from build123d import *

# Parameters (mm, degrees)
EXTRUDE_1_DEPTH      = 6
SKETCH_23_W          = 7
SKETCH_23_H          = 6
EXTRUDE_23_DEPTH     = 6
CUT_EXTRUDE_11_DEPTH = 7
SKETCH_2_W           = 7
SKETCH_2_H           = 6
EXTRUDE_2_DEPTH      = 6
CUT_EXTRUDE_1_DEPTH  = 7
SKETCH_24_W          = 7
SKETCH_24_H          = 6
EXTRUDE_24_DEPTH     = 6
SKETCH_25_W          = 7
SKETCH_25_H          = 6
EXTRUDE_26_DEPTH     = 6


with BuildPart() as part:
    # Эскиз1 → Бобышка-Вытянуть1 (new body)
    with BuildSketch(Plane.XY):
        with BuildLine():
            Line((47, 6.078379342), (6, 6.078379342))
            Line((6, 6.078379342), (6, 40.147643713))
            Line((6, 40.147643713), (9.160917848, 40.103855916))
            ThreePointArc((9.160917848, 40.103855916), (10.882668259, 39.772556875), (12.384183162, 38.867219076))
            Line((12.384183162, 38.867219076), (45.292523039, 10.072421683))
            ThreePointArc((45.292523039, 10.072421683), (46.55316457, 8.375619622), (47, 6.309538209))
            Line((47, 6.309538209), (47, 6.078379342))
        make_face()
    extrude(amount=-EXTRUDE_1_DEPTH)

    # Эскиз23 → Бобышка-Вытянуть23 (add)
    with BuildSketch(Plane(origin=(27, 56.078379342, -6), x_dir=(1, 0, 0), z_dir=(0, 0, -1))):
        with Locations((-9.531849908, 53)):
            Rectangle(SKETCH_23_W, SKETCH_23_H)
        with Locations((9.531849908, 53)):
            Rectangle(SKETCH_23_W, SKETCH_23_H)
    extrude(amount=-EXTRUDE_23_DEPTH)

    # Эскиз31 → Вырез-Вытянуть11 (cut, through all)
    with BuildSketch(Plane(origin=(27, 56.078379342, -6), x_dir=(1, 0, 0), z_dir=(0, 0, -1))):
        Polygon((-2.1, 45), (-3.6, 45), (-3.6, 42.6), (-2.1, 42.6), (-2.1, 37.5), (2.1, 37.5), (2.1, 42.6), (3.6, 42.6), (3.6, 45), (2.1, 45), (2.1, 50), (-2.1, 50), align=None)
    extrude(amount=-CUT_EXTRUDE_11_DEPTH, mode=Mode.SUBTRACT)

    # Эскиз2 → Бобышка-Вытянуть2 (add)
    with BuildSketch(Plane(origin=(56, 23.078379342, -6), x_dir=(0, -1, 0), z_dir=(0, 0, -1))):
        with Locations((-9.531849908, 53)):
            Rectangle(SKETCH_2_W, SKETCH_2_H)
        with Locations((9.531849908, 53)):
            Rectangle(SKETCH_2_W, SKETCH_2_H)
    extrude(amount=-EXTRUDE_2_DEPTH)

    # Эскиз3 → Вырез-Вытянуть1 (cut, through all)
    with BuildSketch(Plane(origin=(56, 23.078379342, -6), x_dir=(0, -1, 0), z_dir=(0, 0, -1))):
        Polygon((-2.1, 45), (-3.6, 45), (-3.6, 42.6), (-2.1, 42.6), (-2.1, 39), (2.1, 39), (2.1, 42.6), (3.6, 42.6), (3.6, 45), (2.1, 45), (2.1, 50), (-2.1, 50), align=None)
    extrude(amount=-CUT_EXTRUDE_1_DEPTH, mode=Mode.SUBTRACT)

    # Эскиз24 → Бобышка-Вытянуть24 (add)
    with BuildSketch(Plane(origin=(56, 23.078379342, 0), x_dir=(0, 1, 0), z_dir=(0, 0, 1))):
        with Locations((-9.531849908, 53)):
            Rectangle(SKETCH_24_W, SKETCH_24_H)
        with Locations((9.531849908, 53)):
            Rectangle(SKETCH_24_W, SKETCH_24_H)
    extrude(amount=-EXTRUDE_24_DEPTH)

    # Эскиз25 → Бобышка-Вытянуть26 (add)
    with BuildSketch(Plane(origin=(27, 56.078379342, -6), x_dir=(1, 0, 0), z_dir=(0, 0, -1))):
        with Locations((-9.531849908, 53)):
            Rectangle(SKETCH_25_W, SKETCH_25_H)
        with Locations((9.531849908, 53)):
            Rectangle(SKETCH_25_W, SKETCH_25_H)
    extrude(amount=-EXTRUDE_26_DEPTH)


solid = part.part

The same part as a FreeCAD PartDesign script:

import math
import FreeCAD as App
import Part
import Sketcher

doc = App.newDocument("Part")
params = doc.addObject("Spreadsheet::Sheet", "Params")
for row, (alias, value) in enumerate([
    ("sketch1_radius", "5 mm"),
    ("sketch1_width", "41 mm"),
    ("pad1_length", "6 mm"),
    ("sketch2_width", "7 mm"),
    ("sketch2_height", "6 mm"),
    ("pad2_length", "6 mm"),
    ("sketch3_height", "5 mm"),
    ("sketch3_width", "1.5 mm"),
    ("sketch3_width2", "4.2 mm"),
    ("sketch3_height2", "2.4 mm"),
    ("sketch3_height3", "5.1 mm"),
    ("sketch4_width", "6 mm"),
    ("sketch4_height", "7 mm"),
    ("pad3_length", "6 mm"),
    ("sketch5_width", "5 mm"),
    ("sketch5_width2", "2.4 mm"),
    ("sketch5_width3", "3.6 mm"),
    ("sketch5_height", "1.5 mm"),
    ("sketch5_height2", "4.2 mm"),
    ("sketch6_width", "6 mm"),
    ("sketch6_height", "7 mm"),
    ("pad4_length", "6 mm"),
    ("sketch7_width", "7 mm"),
    ("sketch7_height", "6 mm"),
    ("pad5_length", "6 mm"),
], start=1):
    params.set(f"A{row}", alias)
    params.set(f"B{row}", "=" + value)
    params.setAlias(f"B{row}", alias)

body = doc.addObject("PartDesign::Body", "Body")

# Sketch on XY plane
sketch1 = body.newObject("Sketcher::SketchObject", "Sketch")
sketch1.AttachmentSupport = (doc.getObject("XY_Plane"), [""])
sketch1.MapMode = "FlatFace"
sketch1.addGeometry([
    Part.LineSegment(App.Vector(6, 6.078379, 0), App.Vector(47, 6.078379, 0)),  # 0
    Part.LineSegment(App.Vector(47, 6.078379, 0), App.Vector(47, 6.309538, 0)),  # 1
    Part.ArcOfCircle(Part.Circle(App.Vector(42, 6.309538, 0), App.Vector(0, 0, 1), 5), math.radians(0), math.radians(48.814075)),  # 2
    Part.LineSegment(App.Vector(45.292523, 10.072422, 0), App.Vector(12.384183, 38.867219, 0)),  # 3
    Part.ArcOfCircle(Part.Circle(App.Vector(9.09166, 35.104336, 0), App.Vector(0, 0, 1), 5), math.radians(48.814075), math.radians(89.20634)),  # 4
    Part.LineSegment(App.Vector(9.160918, 40.103856, 0), App.Vector(6, 40.147644, 0)),  # 5
    Part.LineSegment(App.Vector(6, 40.147644, 0), App.Vector(6, 6.078379, 0)),  # 6
], False)
sketch1.addConstraint([
    Sketcher.Constraint("Coincident", 0, 2, 1, 1),
    Sketcher.Constraint("Tangent", 1, 2, 2, 1),
    Sketcher.Constraint("Tangent", 2, 2, 3, 1),
    Sketcher.Constraint("Tangent", 3, 2, 4, 1),
    Sketcher.Constraint("Tangent", 4, 2, 5, 1),
    Sketcher.Constraint("Coincident", 5, 2, 6, 1),
    Sketcher.Constraint("Coincident", 6, 2, 0, 1),
    Sketcher.Constraint("Horizontal", 0),
    Sketcher.Constraint("Vertical", 1),
    Sketcher.Constraint("Vertical", 6),
    Sketcher.Constraint("Equal", 2, 4),
    Sketcher.Constraint("Radius", 2, 5.0),
    Sketcher.Constraint("DistanceX", 0, 1, 0, 2, 41.0),
    Sketcher.Constraint("DistanceX", -1, 1, 2, 3, 42.0),
    Sketcher.Constraint("DistanceY", 1, 1, 1, 2, 0.231159),
    Sketcher.Constraint("Distance", 5, 3.161221),
    Sketcher.Constraint("DistanceY", 6, 2, 6, 1, 34.069264),
    Sketcher.Constraint("DistanceY", -1, 1, 2, 3, 6.309538),
    Sketcher.Constraint("DistanceX", -1, 1, 4, 3, 9.09166),
])
sketch1.setExpression("Constraints[11]", "Params.sketch1_radius")
sketch1.setExpression("Constraints[12]", "Params.sketch1_width")
pad1 = body.newObject("PartDesign::Pad", "Pad")
pad1.Profile = sketch1
pad1.setExpression("Length", "Params.pad1_length")
pad1.Reversed = True

# Sketch on XY plane
sketch2 = body.newObject("Sketcher::SketchObject", "Sketch001")
sketch2.AttachmentSupport = (doc.getObject("XY_Plane"), [""])
sketch2.MapMode = "FlatFace"
sketch2.AttachmentOffset = App.Placement(App.Vector(0, 0, -6), App.Rotation())
sketch2.addGeometry([
    Part.LineSegment(App.Vector(13.96815, 0.078379, 0), App.Vector(13.96815, 6.078379, 0)),  # 0
    Part.LineSegment(App.Vector(13.96815, 6.078379, 0), App.Vector(20.96815, 6.078379, 0)),  # 1
    Part.LineSegment(App.Vector(20.96815, 6.078379, 0), App.Vector(20.96815, 0.078379, 0)),  # 2
    Part.LineSegment(App.Vector(20.96815, 0.078379, 0), App.Vector(13.96815, 0.078379, 0)),  # 3
    Part.LineSegment(App.Vector(33.03185, 0.078379, 0), App.Vector(33.03185, 6.078379, 0)),  # 4
    Part.LineSegment(App.Vector(33.03185, 6.078379, 0), App.Vector(40.03185, 6.078379, 0)),  # 5
    Part.LineSegment(App.Vector(40.03185, 6.078379, 0), App.Vector(40.03185, 0.078379, 0)),  # 6
    Part.LineSegment(App.Vector(40.03185, 0.078379, 0), App.Vector(33.03185, 0.078379, 0)),  # 7
], False)
sketch2.addConstraint([
    Sketcher.Constraint("Coincident", 0, 2, 1, 1),
    Sketcher.Constraint("Coincident", 1, 2, 2, 1),
    Sketcher.Constraint("Coincident", 2, 2, 3, 1),
    Sketcher.Constraint("Coincident", 3, 2, 0, 1),
    Sketcher.Constraint("Coincident", 4, 2, 5, 1),
    Sketcher.Constraint("Coincident", 5, 2, 6, 1),
    Sketcher.Constraint("Coincident", 6, 2, 7, 1),
    Sketcher.Constraint("Coincident", 7, 2, 4, 1),
    Sketcher.Constraint("Vertical", 0),
    Sketcher.Constraint("Horizontal", 1),
    Sketcher.Constraint("Vertical", 2),
    Sketcher.Constraint("Horizontal", 3),
    Sketcher.Constraint("Vertical", 4),
    Sketcher.Constraint("Horizontal", 5),
    Sketcher.Constraint("Vertical", 6),
    Sketcher.Constraint("Horizontal", 7),
    Sketcher.Constraint("Horizontal", 1, 2, 4, 2),
    Sketcher.Constraint("Horizontal", 3, 2, 6, 2),
    Sketcher.Constraint("Equal", 3, 5),
    Sketcher.Constraint("DistanceX", 1, 1, 1, 2, 7.0),
    Sketcher.Constraint("DistanceY", 0, 1, 0, 2, 6.0),
    Sketcher.Constraint("DistanceX", 1, 2, 4, 2, 12.0637),
    Sketcher.Constraint("DistanceX", -1, 1, 0, 2, 13.96815),
    Sketcher.Constraint("DistanceY", -1, 1, 0, 2, 6.078379),
])
sketch2.setExpression("Constraints[19]", "Params.sketch2_width")
sketch2.setExpression("Constraints[20]", "Params.sketch2_height")
pad2 = body.newObject("PartDesign::Pad", "Pad001")
pad2.Profile = sketch2
pad2.setExpression("Length", "Params.pad2_length")

# Sketch on XY plane
sketch3 = body.newObject("Sketcher::SketchObject", "Sketch002")
sketch3.AttachmentSupport = (doc.getObject("XY_Plane"), [""])
sketch3.MapMode = "FlatFace"
sketch3.AttachmentOffset = App.Placement(App.Vector(0, 0, -6), App.Rotation())
sketch3.addGeometry([
    Part.LineSegment(App.Vector(24.9, 11.078379, 0), App.Vector(23.4, 11.078379, 0)),  # 0
    Part.LineSegment(App.Vector(23.4, 11.078379, 0), App.Vector(23.4, 13.478379, 0)),  # 1
    Part.LineSegment(App.Vector(23.4, 13.478379, 0), App.Vector(24.9, 13.478379, 0)),  # 2
    Part.LineSegment(App.Vector(24.9, 13.478379, 0), App.Vector(24.9, 18.578379, 0)),  # 3
    Part.LineSegment(App.Vector(24.9, 18.578379, 0), App.Vector(29.1, 18.578379, 0)),  # 4
    Part.LineSegment(App.Vector(29.1, 18.578379, 0), App.Vector(29.1, 13.478379, 0)),  # 5
    Part.LineSegment(App.Vector(29.1, 13.478379, 0), App.Vector(30.6, 13.478379, 0)),  # 6
    Part.LineSegment(App.Vector(30.6, 13.478379, 0), App.Vector(30.6, 11.078379, 0)),  # 7
    Part.LineSegment(App.Vector(30.6, 11.078379, 0), App.Vector(29.1, 11.078379, 0)),  # 8
    Part.LineSegment(App.Vector(29.1, 11.078379, 0), App.Vector(29.1, 6.078379, 0)),  # 9
    Part.LineSegment(App.Vector(29.1, 6.078379, 0), App.Vector(24.9, 6.078379, 0)),  # 10
    Part.LineSegment(App.Vector(24.9, 6.078379, 0), App.Vector(24.9, 11.078379, 0)),  # 11
], False)
sketch3.addConstraint([
    Sketcher.Constraint("Coincident", 0, 2, 1, 1),
    Sketcher.Constraint("Coincident", 1, 2, 2, 1),
    Sketcher.Constraint("Coincident", 2, 2, 3, 1),
    Sketcher.Constraint("Coincident", 3, 2, 4, 1),
    Sketcher.Constraint("Coincident", 4, 2, 5, 1),
    Sketcher.Constraint("Coincident", 5, 2, 6, 1),
    Sketcher.Constraint("Coincident", 6, 2, 7, 1),
    Sketcher.Constraint("Coincident", 7, 2, 8, 1),
    Sketcher.Constraint("Coincident", 8, 2, 9, 1),
    Sketcher.Constraint("Coincident", 9, 2, 10, 1),
    Sketcher.Constraint("Coincident", 10, 2, 11, 1),
    Sketcher.Constraint("Coincident", 11, 2, 0, 1),
    Sketcher.Constraint("Horizontal", 0),
    Sketcher.Constraint("Vertical", 1),
    Sketcher.Constraint("Horizontal", 2),
    Sketcher.Constraint("Vertical", 3),
    Sketcher.Constraint("Horizontal", 4),
    Sketcher.Constraint("Vertical", 5),
    Sketcher.Constraint("Horizontal", 6),
    Sketcher.Constraint("Vertical", 7),
    Sketcher.Constraint("Horizontal", 8),
    Sketcher.Constraint("Vertical", 9),
    Sketcher.Constraint("Horizontal", 10),
    Sketcher.Constraint("Vertical", 11),
    Sketcher.Constraint("Horizontal", 2, 2, 5, 2),
    Sketcher.Constraint("Horizontal", 0, 2, 7, 2),
    Sketcher.Constraint("Vertical", 5, 2, 8, 2),
    Sketcher.Constraint("Vertical", 3, 2, 10, 2),
    Sketcher.Constraint("Equal", 2, 6),
    Sketcher.Constraint("DistanceY", 9, 2, 9, 1, 5.0),
    Sketcher.Constraint("DistanceX", 0, 2, 0, 1, 1.5),
    Sketcher.Constraint("DistanceX", 4, 1, 4, 2, 4.2),
    Sketcher.Constraint("DistanceY", 1, 1, 1, 2, 2.4),
    Sketcher.Constraint("DistanceY", 3, 1, 3, 2, 5.1),
    Sketcher.Constraint("DistanceX", -1, 1, 0, 2, 23.4),
    Sketcher.Constraint("DistanceY", -1, 1, 0, 2, 11.078379),
])
sketch3.setExpression("Constraints[29]", "Params.sketch3_height")
sketch3.setExpression("Constraints[30]", "Params.sketch3_width")
sketch3.setExpression("Constraints[31]", "Params.sketch3_width2")
sketch3.setExpression("Constraints[32]", "Params.sketch3_height2")
sketch3.setExpression("Constraints[33]", "Params.sketch3_height3")
pocket1 = body.newObject("PartDesign::Pocket", "Pocket")
pocket1.Profile = sketch3
pocket1.Type = "ThroughAll"
pocket1.Reversed = True

# Sketch on XY plane
sketch4 = body.newObject("Sketcher::SketchObject", "Sketch003")
sketch4.AttachmentSupport = (doc.getObject("XY_Plane"), [""])
sketch4.MapMode = "FlatFace"
sketch4.AttachmentOffset = App.Placement(App.Vector(0, 0, -6), App.Rotation())
sketch4.addGeometry([
    Part.LineSegment(App.Vector(0, 36.110229, 0), App.Vector(6, 36.110229, 0)),  # 0
    Part.LineSegment(App.Vector(6, 36.110229, 0), App.Vector(6, 29.110229, 0)),  # 1
    Part.LineSegment(App.Vector(6, 29.110229, 0), App.Vector(0, 29.110229, 0)),  # 2
    Part.LineSegment(App.Vector(0, 29.110229, 0), App.Vector(0, 36.110229, 0)),  # 3
    Part.LineSegment(App.Vector(0, 17.046529, 0), App.Vector(6, 17.046529, 0)),  # 4
    Part.LineSegment(App.Vector(6, 17.046529, 0), App.Vector(6, 10.046529, 0)),  # 5
    Part.LineSegment(App.Vector(6, 10.046529, 0), App.Vector(0, 10.046529, 0)),  # 6
    Part.LineSegment(App.Vector(0, 10.046529, 0), App.Vector(0, 17.046529, 0)),  # 7
], False)
sketch4.addConstraint([
    Sketcher.Constraint("Coincident", 0, 2, 1, 1),
    Sketcher.Constraint("Coincident", 1, 2, 2, 1),
    Sketcher.Constraint("Coincident", 2, 2, 3, 1),
    Sketcher.Constraint("Coincident", 3, 2, 0, 1),
    Sketcher.Constraint("Coincident", 4, 2, 5, 1),
    Sketcher.Constraint("Coincident", 5, 2, 6, 1),
    Sketcher.Constraint("Coincident", 6, 2, 7, 1),
    Sketcher.Constraint("Coincident", 7, 2, 4, 1),
    Sketcher.Constraint("Horizontal", 0),
    Sketcher.Constraint("Vertical", 1),
    Sketcher.Constraint("Horizontal", 2),
    Sketcher.Constraint("Vertical", 3),
    Sketcher.Constraint("Horizontal", 4),
    Sketcher.Constraint("Vertical", 5),
    Sketcher.Constraint("Horizontal", 6),
    Sketcher.Constraint("Vertical", 7),
    Sketcher.Constraint("PointOnObject", 2, 2, -2),
    Sketcher.Constraint("PointOnObject", 6, 2, -2),
    Sketcher.Constraint("Vertical", 1, 2, 4, 2),
    Sketcher.Constraint("Equal", 3, 5),
    Sketcher.Constraint("DistanceX", 0, 1, 0, 2, 6.0),
    Sketcher.Constraint("DistanceY", 1, 2, 1, 1, 7.0),
    Sketcher.Constraint("DistanceY", 4, 2, 1, 2, 12.0637),
    Sketcher.Constraint("DistanceY", -1, 1, 0, 2, 36.110229),
])
sketch4.setExpression("Constraints[20]", "Params.sketch4_width")
sketch4.setExpression("Constraints[21]", "Params.sketch4_height")
pad3 = body.newObject("PartDesign::Pad", "Pad002")
pad3.Profile = sketch4
pad3.setExpression("Length", "Params.pad3_length")

# Sketch on XY plane
sketch5 = body.newObject("Sketcher::SketchObject", "Sketch004")
sketch5.AttachmentSupport = (doc.getObject("XY_Plane"), [""])
sketch5.MapMode = "FlatFace"
sketch5.AttachmentOffset = App.Placement(App.Vector(0, 0, -6), App.Rotation())
sketch5.addGeometry([
    Part.LineSegment(App.Vector(11, 25.178379, 0), App.Vector(11, 26.678379, 0)),  # 0
    Part.LineSegment(App.Vector(11, 26.678379, 0), App.Vector(13.4, 26.678379, 0)),  # 1
    Part.LineSegment(App.Vector(13.4, 26.678379, 0), App.Vector(13.4, 25.178379, 0)),  # 2
    Part.LineSegment(App.Vector(13.4, 25.178379, 0), App.Vector(17, 25.178379, 0)),  # 3
    Part.LineSegment(App.Vector(17, 25.178379, 0), App.Vector(17, 20.978379, 0)),  # 4
    Part.LineSegment(App.Vector(17, 20.978379, 0), App.Vector(13.4, 20.978379, 0)),  # 5
    Part.LineSegment(App.Vector(13.4, 20.978379, 0), App.Vector(13.4, 19.478379, 0)),  # 6
    Part.LineSegment(App.Vector(13.4, 19.478379, 0), App.Vector(11, 19.478379, 0)),  # 7
    Part.LineSegment(App.Vector(11, 19.478379, 0), App.Vector(11, 20.978379, 0)),  # 8
    Part.LineSegment(App.Vector(11, 20.978379, 0), App.Vector(6, 20.978379, 0)),  # 9
    Part.LineSegment(App.Vector(6, 20.978379, 0), App.Vector(6, 25.178379, 0)),  # 10
    Part.LineSegment(App.Vector(6, 25.178379, 0), App.Vector(11, 25.178379, 0)),  # 11
], False)
sketch5.addConstraint([
    Sketcher.Constraint("Coincident", 0, 2, 1, 1),
    Sketcher.Constraint("Coincident", 1, 2, 2, 1),
    Sketcher.Constraint("Coincident", 2, 2, 3, 1),
    Sketcher.Constraint("Coincident", 3, 2, 4, 1),
    Sketcher.Constraint("Coincident", 4, 2, 5, 1),
    Sketcher.Constraint("Coincident", 5, 2, 6, 1),
    Sketcher.Constraint("Coincident", 6, 2, 7, 1),
    Sketcher.Constraint("Coincident", 7, 2, 8, 1),
    Sketcher.Constraint("Coincident", 8, 2, 9, 1),
    Sketcher.Constraint("Coincident", 9, 2, 10, 1),
    Sketcher.Constraint("Coincident", 10, 2, 11, 1),
    Sketcher.Constraint("Coincident", 11, 2, 0, 1),
    Sketcher.Constraint("Vertical", 0),
    Sketcher.Constraint("Horizontal", 1),
    Sketcher.Constraint("Vertical", 2),
    Sketcher.Constraint("Horizontal", 3),
    Sketcher.Constraint("Vertical", 4),
    Sketcher.Constraint("Horizontal", 5),
    Sketcher.Constraint("Vertical", 6),
    Sketcher.Constraint("Horizontal", 7),
    Sketcher.Constraint("Vertical", 8),
    Sketcher.Constraint("Horizontal", 9),
    Sketcher.Constraint("Vertical", 10),
    Sketcher.Constraint("Horizontal", 11),
    Sketcher.Constraint("Horizontal", 5, 2, 8, 2),
    Sketcher.Constraint("Horizontal", 3, 2, 10, 2),
    Sketcher.Constraint("Vertical", 2, 2, 5, 2),
    Sketcher.Constraint("Vertical", 0, 2, 7, 2),
    Sketcher.Constraint("Equal", 2, 6),
    Sketcher.Constraint("DistanceX", 9, 2, 9, 1, 5.0),
    Sketcher.Constraint("DistanceX", 1, 1, 1, 2, 2.4),
    Sketcher.Constraint("DistanceX", 3, 1, 3, 2, 3.6),
    Sketcher.Constraint("DistanceY", 0, 1, 0, 2, 1.5),
    Sketcher.Constraint("DistanceY", 4, 2, 4, 1, 4.2),
    Sketcher.Constraint("DistanceX", -1, 1, 0, 2, 11.0),
    Sketcher.Constraint("DistanceY", -1, 1, 0, 2, 26.678379),
])
sketch5.setExpression("Constraints[29]", "Params.sketch5_width")
sketch5.setExpression("Constraints[30]", "Params.sketch5_width2")
sketch5.setExpression("Constraints[31]", "Params.sketch5_width3")
sketch5.setExpression("Constraints[32]", "Params.sketch5_height")
sketch5.setExpression("Constraints[33]", "Params.sketch5_height2")
pocket2 = body.newObject("PartDesign::Pocket", "Pocket001")
pocket2.Profile = sketch5
pocket2.Type = "ThroughAll"
pocket2.Reversed = True

# Sketch on XY plane
sketch6 = body.newObject("Sketcher::SketchObject", "Sketch005")
sketch6.AttachmentSupport = (doc.getObject("XY_Plane"), [""])
sketch6.MapMode = "FlatFace"
sketch6.addGeometry([
    Part.LineSegment(App.Vector(0, 10.046529, 0), App.Vector(6, 10.046529, 0)),  # 0
    Part.LineSegment(App.Vector(6, 10.046529, 0), App.Vector(6, 17.046529, 0)),  # 1
    Part.LineSegment(App.Vector(6, 17.046529, 0), App.Vector(0, 17.046529, 0)),  # 2
    Part.LineSegment(App.Vector(0, 17.046529, 0), App.Vector(0, 10.046529, 0)),  # 3
    Part.LineSegment(App.Vector(0, 29.110229, 0), App.Vector(6, 29.110229, 0)),  # 4
    Part.LineSegment(App.Vector(6, 29.110229, 0), App.Vector(6, 36.110229, 0)),  # 5
    Part.LineSegment(App.Vector(6, 36.110229, 0), App.Vector(0, 36.110229, 0)),  # 6
    Part.LineSegment(App.Vector(0, 36.110229, 0), App.Vector(0, 29.110229, 0)),  # 7
], False)
sketch6.addConstraint([
    Sketcher.Constraint("Coincident", 0, 2, 1, 1),
    Sketcher.Constraint("Coincident", 1, 2, 2, 1),
    Sketcher.Constraint("Coincident", 2, 2, 3, 1),
    Sketcher.Constraint("Coincident", 3, 2, 0, 1),
    Sketcher.Constraint("Coincident", 4, 2, 5, 1),
    Sketcher.Constraint("Coincident", 5, 2, 6, 1),
    Sketcher.Constraint("Coincident", 6, 2, 7, 1),
    Sketcher.Constraint("Coincident", 7, 2, 4, 1),
    Sketcher.Constraint("Horizontal", 0),
    Sketcher.Constraint("Vertical", 1),
    Sketcher.Constraint("Horizontal", 2),
    Sketcher.Constraint("Vertical", 3),
    Sketcher.Constraint("Horizontal", 4),
    Sketcher.Constraint("Vertical", 5),
    Sketcher.Constraint("Horizontal", 6),
    Sketcher.Constraint("Vertical", 7),
    Sketcher.Constraint("PointOnObject", 2, 2, -2),
    Sketcher.Constraint("PointOnObject", 6, 2, -2),
    Sketcher.Constraint("Vertical", 1, 2, 4, 2),
    Sketcher.Constraint("Equal", 3, 5),
    Sketcher.Constraint("DistanceX", 0, 1, 0, 2, 6.0),
    Sketcher.Constraint("DistanceY", 1, 1, 1, 2, 7.0),
    Sketcher.Constraint("DistanceY", 1, 2, 4, 2, 12.0637),
    Sketcher.Constraint("DistanceY", -1, 1, 0, 2, 10.046529),
])
sketch6.setExpression("Constraints[20]", "Params.sketch6_width")
sketch6.setExpression("Constraints[21]", "Params.sketch6_height")
pad4 = body.newObject("PartDesign::Pad", "Pad003")
pad4.Profile = sketch6
pad4.setExpression("Length", "Params.pad4_length")
pad4.Reversed = True

# Sketch on XY plane
sketch7 = body.newObject("Sketcher::SketchObject", "Sketch006")
sketch7.AttachmentSupport = (doc.getObject("XY_Plane"), [""])
sketch7.MapMode = "FlatFace"
sketch7.AttachmentOffset = App.Placement(App.Vector(0, 0, -6), App.Rotation())
sketch7.addGeometry([
    Part.LineSegment(App.Vector(13.96815, 0.078379, 0), App.Vector(13.96815, 6.078379, 0)),  # 0
    Part.LineSegment(App.Vector(13.96815, 6.078379, 0), App.Vector(20.96815, 6.078379, 0)),  # 1
    Part.LineSegment(App.Vector(20.96815, 6.078379, 0), App.Vector(20.96815, 0.078379, 0)),  # 2
    Part.LineSegment(App.Vector(20.96815, 0.078379, 0), App.Vector(13.96815, 0.078379, 0)),  # 3
    Part.LineSegment(App.Vector(33.03185, 0.078379, 0), App.Vector(33.03185, 6.078379, 0)),  # 4
    Part.LineSegment(App.Vector(33.03185, 6.078379, 0), App.Vector(40.03185, 6.078379, 0)),  # 5
    Part.LineSegment(App.Vector(40.03185, 6.078379, 0), App.Vector(40.03185, 0.078379, 0)),  # 6
    Part.LineSegment(App.Vector(40.03185, 0.078379, 0), App.Vector(33.03185, 0.078379, 0)),  # 7
], False)
sketch7.addConstraint([
    Sketcher.Constraint("Coincident", 0, 2, 1, 1),
    Sketcher.Constraint("Coincident", 1, 2, 2, 1),
    Sketcher.Constraint("Coincident", 2, 2, 3, 1),
    Sketcher.Constraint("Coincident", 3, 2, 0, 1),
    Sketcher.Constraint("Coincident", 4, 2, 5, 1),
    Sketcher.Constraint("Coincident", 5, 2, 6, 1),
    Sketcher.Constraint("Coincident", 6, 2, 7, 1),
    Sketcher.Constraint("Coincident", 7, 2, 4, 1),
    Sketcher.Constraint("Vertical", 0),
    Sketcher.Constraint("Horizontal", 1),
    Sketcher.Constraint("Vertical", 2),
    Sketcher.Constraint("Horizontal", 3),
    Sketcher.Constraint("Vertical", 4),
    Sketcher.Constraint("Horizontal", 5),
    Sketcher.Constraint("Vertical", 6),
    Sketcher.Constraint("Horizontal", 7),
    Sketcher.Constraint("Horizontal", 1, 2, 4, 2),
    Sketcher.Constraint("Horizontal", 3, 2, 6, 2),
    Sketcher.Constraint("Equal", 3, 5),
    Sketcher.Constraint("DistanceX", 1, 1, 1, 2, 7.0),
    Sketcher.Constraint("DistanceY", 0, 1, 0, 2, 6.0),
    Sketcher.Constraint("DistanceX", 1, 2, 4, 2, 12.0637),
    Sketcher.Constraint("DistanceX", -1, 1, 0, 2, 13.96815),
    Sketcher.Constraint("DistanceY", -1, 1, 0, 2, 6.078379),
])
sketch7.setExpression("Constraints[19]", "Params.sketch7_width")
sketch7.setExpression("Constraints[20]", "Params.sketch7_height")
pad5 = body.newObject("PartDesign::Pad", "Pad004")
pad5.Profile = sketch7
pad5.setExpression("Length", "Params.pad5_length")

doc.recompute()
